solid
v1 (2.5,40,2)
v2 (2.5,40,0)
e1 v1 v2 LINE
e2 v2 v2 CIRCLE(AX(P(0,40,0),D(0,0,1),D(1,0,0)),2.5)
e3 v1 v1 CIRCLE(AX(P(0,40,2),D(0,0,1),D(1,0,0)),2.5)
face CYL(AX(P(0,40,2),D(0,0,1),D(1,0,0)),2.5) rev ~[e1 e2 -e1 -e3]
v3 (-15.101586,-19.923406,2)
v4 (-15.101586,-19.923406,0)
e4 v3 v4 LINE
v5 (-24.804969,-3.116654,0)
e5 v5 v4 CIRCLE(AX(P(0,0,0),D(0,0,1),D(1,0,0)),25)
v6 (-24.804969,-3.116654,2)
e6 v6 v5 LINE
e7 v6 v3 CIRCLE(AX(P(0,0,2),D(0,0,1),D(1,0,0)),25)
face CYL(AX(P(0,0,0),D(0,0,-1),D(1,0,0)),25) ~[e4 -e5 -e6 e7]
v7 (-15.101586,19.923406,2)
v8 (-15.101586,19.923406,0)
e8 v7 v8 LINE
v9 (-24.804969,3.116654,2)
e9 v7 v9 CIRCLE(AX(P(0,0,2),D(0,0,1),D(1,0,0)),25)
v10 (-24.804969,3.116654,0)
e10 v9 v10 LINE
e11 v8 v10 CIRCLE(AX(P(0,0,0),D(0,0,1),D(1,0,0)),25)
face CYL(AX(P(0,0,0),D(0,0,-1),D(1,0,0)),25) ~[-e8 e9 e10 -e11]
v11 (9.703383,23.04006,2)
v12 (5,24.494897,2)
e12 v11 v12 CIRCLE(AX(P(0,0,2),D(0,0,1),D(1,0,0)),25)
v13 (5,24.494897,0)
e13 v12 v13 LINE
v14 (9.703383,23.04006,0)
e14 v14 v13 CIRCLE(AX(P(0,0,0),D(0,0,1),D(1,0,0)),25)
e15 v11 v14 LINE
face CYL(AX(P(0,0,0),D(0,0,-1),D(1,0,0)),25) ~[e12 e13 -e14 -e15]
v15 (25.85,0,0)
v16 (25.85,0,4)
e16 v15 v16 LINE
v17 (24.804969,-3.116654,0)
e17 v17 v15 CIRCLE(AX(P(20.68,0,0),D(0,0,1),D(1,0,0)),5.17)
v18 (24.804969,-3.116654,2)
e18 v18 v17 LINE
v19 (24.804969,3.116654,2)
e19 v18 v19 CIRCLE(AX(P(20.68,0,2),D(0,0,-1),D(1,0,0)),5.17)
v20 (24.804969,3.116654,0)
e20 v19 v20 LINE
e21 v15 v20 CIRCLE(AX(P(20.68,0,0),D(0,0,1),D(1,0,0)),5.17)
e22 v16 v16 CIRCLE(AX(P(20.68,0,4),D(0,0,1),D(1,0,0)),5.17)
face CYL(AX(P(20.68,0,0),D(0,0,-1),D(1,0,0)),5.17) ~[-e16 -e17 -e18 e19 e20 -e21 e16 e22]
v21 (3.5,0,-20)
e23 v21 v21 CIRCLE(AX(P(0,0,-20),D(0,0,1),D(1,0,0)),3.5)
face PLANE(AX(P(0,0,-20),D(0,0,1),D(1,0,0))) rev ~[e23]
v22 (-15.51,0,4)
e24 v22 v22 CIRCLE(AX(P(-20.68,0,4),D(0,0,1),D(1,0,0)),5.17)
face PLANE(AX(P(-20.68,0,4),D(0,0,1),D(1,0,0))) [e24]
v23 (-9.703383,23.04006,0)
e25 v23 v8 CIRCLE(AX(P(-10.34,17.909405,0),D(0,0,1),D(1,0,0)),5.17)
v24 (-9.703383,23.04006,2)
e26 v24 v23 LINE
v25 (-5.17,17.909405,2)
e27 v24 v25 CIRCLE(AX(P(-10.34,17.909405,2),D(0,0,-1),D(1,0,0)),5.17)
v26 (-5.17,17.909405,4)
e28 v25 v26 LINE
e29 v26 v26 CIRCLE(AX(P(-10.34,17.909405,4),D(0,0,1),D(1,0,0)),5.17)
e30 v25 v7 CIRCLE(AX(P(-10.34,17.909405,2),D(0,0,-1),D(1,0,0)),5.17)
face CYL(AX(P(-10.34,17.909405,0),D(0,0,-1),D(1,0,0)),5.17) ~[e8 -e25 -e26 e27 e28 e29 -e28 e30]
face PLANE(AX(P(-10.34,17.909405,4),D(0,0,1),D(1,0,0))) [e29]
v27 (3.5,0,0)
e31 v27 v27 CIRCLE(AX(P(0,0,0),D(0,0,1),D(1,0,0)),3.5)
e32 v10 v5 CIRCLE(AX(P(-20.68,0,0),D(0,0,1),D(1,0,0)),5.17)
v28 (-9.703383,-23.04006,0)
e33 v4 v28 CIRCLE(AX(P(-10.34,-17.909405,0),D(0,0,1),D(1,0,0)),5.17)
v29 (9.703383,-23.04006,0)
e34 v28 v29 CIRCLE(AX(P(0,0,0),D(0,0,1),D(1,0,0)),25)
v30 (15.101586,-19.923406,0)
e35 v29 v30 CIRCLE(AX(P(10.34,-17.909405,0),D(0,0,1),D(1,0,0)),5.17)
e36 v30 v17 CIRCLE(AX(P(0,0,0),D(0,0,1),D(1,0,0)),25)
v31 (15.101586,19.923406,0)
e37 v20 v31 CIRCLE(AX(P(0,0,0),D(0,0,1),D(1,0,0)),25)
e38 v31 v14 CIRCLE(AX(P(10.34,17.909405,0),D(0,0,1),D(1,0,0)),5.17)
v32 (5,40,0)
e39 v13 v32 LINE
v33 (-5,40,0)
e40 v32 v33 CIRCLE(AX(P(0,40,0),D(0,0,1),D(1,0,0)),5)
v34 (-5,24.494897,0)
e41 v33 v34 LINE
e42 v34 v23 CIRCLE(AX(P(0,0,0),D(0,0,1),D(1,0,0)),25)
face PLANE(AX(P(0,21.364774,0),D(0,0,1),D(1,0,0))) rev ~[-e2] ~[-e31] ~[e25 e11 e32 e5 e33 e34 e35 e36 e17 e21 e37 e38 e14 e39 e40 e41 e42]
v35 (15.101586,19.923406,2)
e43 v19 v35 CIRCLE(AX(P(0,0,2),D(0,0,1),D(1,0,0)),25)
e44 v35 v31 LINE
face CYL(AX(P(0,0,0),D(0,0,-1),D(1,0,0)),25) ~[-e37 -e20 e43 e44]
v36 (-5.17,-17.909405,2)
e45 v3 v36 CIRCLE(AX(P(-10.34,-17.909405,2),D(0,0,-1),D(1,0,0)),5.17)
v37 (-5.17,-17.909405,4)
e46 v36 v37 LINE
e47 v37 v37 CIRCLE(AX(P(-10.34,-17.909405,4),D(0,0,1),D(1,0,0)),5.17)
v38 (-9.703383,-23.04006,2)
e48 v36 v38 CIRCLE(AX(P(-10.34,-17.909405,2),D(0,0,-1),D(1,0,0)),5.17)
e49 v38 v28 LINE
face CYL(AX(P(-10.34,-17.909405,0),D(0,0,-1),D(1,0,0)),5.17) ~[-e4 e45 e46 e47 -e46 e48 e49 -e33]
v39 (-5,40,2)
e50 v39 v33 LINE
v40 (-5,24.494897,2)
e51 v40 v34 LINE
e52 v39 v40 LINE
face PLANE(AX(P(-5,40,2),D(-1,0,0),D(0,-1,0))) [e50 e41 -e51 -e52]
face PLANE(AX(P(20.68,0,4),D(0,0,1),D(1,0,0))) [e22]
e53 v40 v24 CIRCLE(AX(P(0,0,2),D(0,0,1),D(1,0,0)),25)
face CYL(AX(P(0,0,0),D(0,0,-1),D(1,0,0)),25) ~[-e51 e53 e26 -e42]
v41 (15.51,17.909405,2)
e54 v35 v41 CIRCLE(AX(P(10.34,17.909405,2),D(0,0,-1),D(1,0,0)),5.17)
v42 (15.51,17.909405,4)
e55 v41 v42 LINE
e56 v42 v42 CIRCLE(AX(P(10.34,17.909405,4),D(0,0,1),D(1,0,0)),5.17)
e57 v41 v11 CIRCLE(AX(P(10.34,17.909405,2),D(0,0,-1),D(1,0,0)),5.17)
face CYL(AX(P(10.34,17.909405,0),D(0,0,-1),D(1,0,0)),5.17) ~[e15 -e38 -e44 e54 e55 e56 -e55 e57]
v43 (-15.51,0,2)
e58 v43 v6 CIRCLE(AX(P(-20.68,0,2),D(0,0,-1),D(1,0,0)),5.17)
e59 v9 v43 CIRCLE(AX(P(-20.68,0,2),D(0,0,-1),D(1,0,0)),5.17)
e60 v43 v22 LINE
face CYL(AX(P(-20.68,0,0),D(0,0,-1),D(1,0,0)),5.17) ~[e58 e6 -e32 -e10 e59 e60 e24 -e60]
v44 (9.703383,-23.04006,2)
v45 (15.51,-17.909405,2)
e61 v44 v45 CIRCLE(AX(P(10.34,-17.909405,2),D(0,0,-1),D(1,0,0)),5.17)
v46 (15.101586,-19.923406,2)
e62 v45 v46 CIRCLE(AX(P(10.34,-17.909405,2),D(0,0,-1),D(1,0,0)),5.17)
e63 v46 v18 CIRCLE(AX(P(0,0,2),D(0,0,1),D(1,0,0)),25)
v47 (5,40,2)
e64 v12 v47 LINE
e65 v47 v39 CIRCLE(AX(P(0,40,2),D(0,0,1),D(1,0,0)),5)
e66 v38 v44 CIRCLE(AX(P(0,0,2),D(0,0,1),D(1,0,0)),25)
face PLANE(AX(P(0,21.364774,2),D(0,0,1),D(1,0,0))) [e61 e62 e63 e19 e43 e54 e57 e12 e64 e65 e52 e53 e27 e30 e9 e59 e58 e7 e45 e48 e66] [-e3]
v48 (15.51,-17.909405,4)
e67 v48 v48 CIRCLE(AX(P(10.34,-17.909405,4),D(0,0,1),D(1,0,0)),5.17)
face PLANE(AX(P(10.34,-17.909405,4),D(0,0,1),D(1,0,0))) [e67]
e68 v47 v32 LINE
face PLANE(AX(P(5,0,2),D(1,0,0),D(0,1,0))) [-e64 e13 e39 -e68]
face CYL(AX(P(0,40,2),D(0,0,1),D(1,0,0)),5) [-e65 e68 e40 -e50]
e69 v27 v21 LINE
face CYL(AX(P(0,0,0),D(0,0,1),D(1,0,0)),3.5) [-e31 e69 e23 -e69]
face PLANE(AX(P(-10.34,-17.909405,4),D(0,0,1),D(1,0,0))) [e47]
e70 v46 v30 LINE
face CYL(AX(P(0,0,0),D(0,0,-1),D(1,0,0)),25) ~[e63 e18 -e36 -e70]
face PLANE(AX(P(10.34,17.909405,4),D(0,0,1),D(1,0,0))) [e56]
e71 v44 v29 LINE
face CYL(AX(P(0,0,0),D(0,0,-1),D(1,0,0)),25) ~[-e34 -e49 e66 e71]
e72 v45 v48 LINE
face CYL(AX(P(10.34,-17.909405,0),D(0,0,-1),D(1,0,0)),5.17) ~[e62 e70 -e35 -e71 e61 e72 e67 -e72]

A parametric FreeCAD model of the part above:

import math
import FreeCAD as App
import Part
import Sketcher
from FreeCAD import Vector
Q = App.Units.Quantity

doc = App.newDocument("Part")
params = doc.addObject("Spreadsheet::Sheet", "Params")
for row, (alias, value) in enumerate([
    ("sketch1_diameter", "7 mm"),
    ("pad1_length", "20 mm"),
    ("sketch2_diameter", "50 mm"),
    ("pad2_length", "2 mm"),
    ("sketch3_diameter", "10.34 mm"),
    ("pad3_length", "4 mm"),
    ("sketch4_diameter", "5 mm"),
    ("sketch4_radius", "5 mm"),
    ("sketch4_height", "40 mm"),
    ("pad4_length", "2 mm"),
], start=1):
    params.set(f"A{row}", alias)
    params.set(f"B{row}", "=" + value)
    params.setAlias(f"B{row}", alias)

body = doc.addObject("PartDesign::Body", "Body")

# Sketch on XY plane
sketch1 = body.newObject("Sketcher::SketchObject", "Sketch")
sketch1.AttachmentSupport = (doc.getObject("XY_Plane"), [""])
sketch1.MapMode = "FlatFace"
sketch1.addGeometry(Part.Circle(Vector(0, 0, 0), Vector(0, 0, 1), 3.5), False)
sketch1.addConstraint(Sketcher.Constraint("Coincident", 0, 3, -1, 1))
sketch1.addConstraint(Sketcher.Constraint("Diameter", 0, Q("7 mm")))
sketch1.setExpression("Constraints[1]", "Params.sketch1_diameter")
pad1 = body.newObject("PartDesign::Pad", "Pad")
pad1.Profile = sketch1
pad1.setExpression("Length", "Params.pad1_length")
pad1.Reversed = True

# Sketch on XY plane
sketch2 = body.newObject("Sketcher::SketchObject", "Sketch001")
sketch2.AttachmentSupport = (doc.getObject("XY_Plane"), [""])
sketch2.MapMode = "FlatFace"
sketch2.addGeometry(Part.Circle(Vector(0, 0, 0), Vector(0, 0, 1), 25), False)
sketch2.addConstraint(Sketcher.Constraint("Coincident", 0, 3, -1, 1))
sketch2.addConstraint(Sketcher.Constraint("Diameter", 0, Q("50 mm")))
sketch2.setExpression("Constraints[1]", "Params.sketch2_diameter")
pad2 = body.newObject("PartDesign::Pad", "Pad001")
pad2.Profile = sketch2
pad2.setExpression("Length", "Params.pad2_length")

# Sketch on XY plane
sketch3 = body.newObject("Sketcher::SketchObject", "Sketch002")
sketch3.AttachmentSupport = (doc.getObject("XY_Plane"), [""])
sketch3.MapMode = "FlatFace"
sketch3.addGeometry(Part.Circle(Vector(-20.68, 0, 0), Vector(0, 0, 1), 5.17), False)
sketch3.addGeometry(Part.Circle(Vector(-10.34, -17.909405, 0), Vector(0, 0, 1), 5.17), False)
sketch3.addGeometry(Part.Circle(Vector(10.34, -17.909405, 0), Vector(0, 0, 1), 5.17), False)
sketch3.addGeometry(Part.Circle(Vector(20.68, 0, 0), Vector(0, 0, 1), 5.17), False)
sketch3.addGeometry(Part.Circle(Vector(10.34, 17.909405, 0), Vector(0, 0, 1), 5.17), False)
sketch3.addGeometry(Part.Circle(Vector(-10.34, 17.909405, 0), Vector(0, 0, 1), 5.17), False)
sketch3.addConstraint(Sketcher.Constraint("Equal", 0, 1))
sketch3.addConstraint(Sketcher.Constraint("Equal", 1, 2))
sketch3.addConstraint(Sketcher.Constraint("Equal", 2, 3))
sketch3.addConstraint(Sketcher.Constraint("Equal", 3, 4))
sketch3.addConstraint(Sketcher.Constraint("Equal", 4, 5))
sketch3.addConstraint(Sketcher.Constraint("Symmetric", 0, 3, 3, 3, -1, 1))
sketch3.addConstraint(Sketcher.Constraint("Symmetric", 1, 3, 4, 3, -1, 1))
sketch3.addConstraint(Sketcher.Constraint("Symmetric", 2, 3, 5, 3, -1, 1))
sketch3.addConstraint(Sketcher.Constraint("Symmetric", 1, 3, 2, 3, -2))
sketch3.addConstraint(Sketcher.Constraint("PointOnObject", 0, 3, -1))
sketch3.addConstraint(Sketcher.Constraint("Diameter", 0, Q("10.34 mm")))
sketch3.addConstraint(Sketcher.Constraint("DistanceX", 0, 3, -1, 1, Q("20.68 mm")))
sketch3.addConstraint(Sketcher.Constraint("DistanceX", 1, 3, -1, 1, Q("10.34 mm")))
sketch3.addConstraint(Sketcher.Constraint("DistanceY", 2, 3, 4, 3, Q("35.81881 mm")))
sketch3.setExpression("Constraints[10]", "Params.sketch3_diameter")
pad3 = body.newObject("PartDesign::Pad", "Pad002")
pad3.Profile = sketch3
pad3.setExpression("Length", "Params.pad3_length")

# Sketch on XY plane
sketch4 = body.newObject("Sketcher::SketchObject", "Sketch003")
sketch4.AttachmentSupport = (doc.getObject("XY_Plane"), [""])
sketch4.MapMode = "FlatFace"
sketch4.AttachmentOffset = App.Placement(Vector(0, 0, 2), App.Rotation())
sketch4.addGeometry(Part.LineSegment(Vector(-5, 40, 0), Vector(-5, 0, 0)), False)
sketch4.addGeometry(Part.LineSegment(Vector(-5, 0, 0), Vector(5, 0, 0)), False)
sketch4.addGeometry(Part.LineSegment(Vector(5, 0, 0), Vector(5, 40, 0)), False)
sketch4.addGeometry(Part.ArcOfCircle(Part.Circle(Vector(0, 40, 0), Vector(0, 0, 1), 5), math.radians(0), math.radians(180)), False)
sketch4.addGeometry(Part.Circle(Vector(0, 40, 0), Vector(0, 0, 1), 2.5), False)
sketch4.addConstraint(Sketcher.Constraint("Coincident", 0, 2, 1, 1))
sketch4.addConstraint(Sketcher.Constraint("Coincident", 1, 2, 2, 1))
sketch4.addConstraint(Sketcher.Constraint("Tangent", 2, 2, 3, 1))
sketch4.addConstraint(Sketcher.Constraint("Tangent", 3, 2, 0, 1))
sketch4.addConstraint(Sketcher.Constraint("Vertical", 0))
sketch4.addConstraint(Sketcher.Constraint("Horizontal", 1))
sketch4.addConstraint(Sketcher.Constraint("Vertical", 2))
sketch4.addConstraint(Sketcher.Constraint("Coincident", 4, 3, 3, 3))
sketch4.addConstraint(Sketcher.Constraint("Symmetric", 0, 2, 1, 2, -1, 1))
sketch4.addConstraint(Sketcher.Constraint("Diameter", 4, Q("5 mm")))
sketch4.addConstraint(Sketcher.Constraint("Radius", 3, Q("5 mm")))
sketch4.addConstraint(Sketcher.Constraint("DistanceY", 0, 2, 0, 1, Q("40 mm")))
sketch4.setExpression("Constraints[9]", "Params.sketch4_diameter")
sketch4.setExpression("Constraints[10]", "Params.sketch4_radius")
sketch4.setExpression("Constraints[11]", "Params.sketch4_height")
pad4 = body.newObject("PartDesign::Pad", "Pad003")
pad4.Profile = sketch4
pad4.setExpression("Length", "Params.pad4_length")
pad4.Reversed = True

doc.recompute()
